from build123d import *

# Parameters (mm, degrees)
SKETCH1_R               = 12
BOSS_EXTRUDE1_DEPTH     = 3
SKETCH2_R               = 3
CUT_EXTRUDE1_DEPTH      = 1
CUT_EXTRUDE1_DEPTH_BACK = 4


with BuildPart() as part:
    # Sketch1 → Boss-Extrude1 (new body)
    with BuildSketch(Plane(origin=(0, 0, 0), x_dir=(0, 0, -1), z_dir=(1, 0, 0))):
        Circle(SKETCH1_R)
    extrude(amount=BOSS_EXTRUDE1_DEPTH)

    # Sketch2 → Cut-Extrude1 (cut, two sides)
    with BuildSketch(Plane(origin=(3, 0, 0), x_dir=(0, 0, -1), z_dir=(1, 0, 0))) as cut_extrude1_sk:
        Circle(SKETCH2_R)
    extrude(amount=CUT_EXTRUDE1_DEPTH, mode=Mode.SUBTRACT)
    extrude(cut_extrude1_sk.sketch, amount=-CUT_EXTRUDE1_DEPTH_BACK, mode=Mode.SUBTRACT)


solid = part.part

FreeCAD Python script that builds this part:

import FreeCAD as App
import Part
import Sketcher

doc = App.newDocument("Part")
body = doc.addObject("PartDesign::Body", "Body")

# Sketch on YZ plane
sketch1 = doc.addObject("Sketcher::SketchObject", "Sketch")
body.addObject(sketch1)
sketch1.AttachmentSupport = (doc.YZ_Plane, [""])
sketch1.MapMode = "FlatFace"
sketch1.addGeometry(Part.Circle(App.Vector(0, 0, 0), App.Vector(0, 0, 1), 12), False)
sketch1.addConstraint(Sketcher.Constraint("Coincident", 0, 3, -1, 1))
sketch1.addConstraint(Sketcher.Constraint("Diameter", 0, 24.0))
pad1 = doc.addObject("PartDesign::Pad", "Pad")
body.addObject(pad1)
pad1.Profile = sketch1
pad1.Length = 3

# Sketch on YZ plane
sketch2 = doc.addObject("Sketcher::SketchObject", "Sketch001")
body.addObject(sketch2)
sketch2.AttachmentSupport = (doc.YZ_Plane, [""])
sketch2.MapMode = "FlatFace"
sketch2.AttachmentOffset = App.Placement(App.Vector(0, 0, 3), App.Rotation())
sketch2.addGeometry(Part.Circle(App.Vector(0, 0, 0), App.Vector(0, 0, 1), 3), False)
sketch2.addConstraint(Sketcher.Constraint("Coincident", 0, 3, -1, 1))
sketch2.addConstraint(Sketcher.Constraint("Diameter", 0, 6.0))
pocket1 = doc.addObject("PartDesign::Pocket", "Pocket")
body.addObject(pocket1)
pocket1.Profile = sketch2
pocket1.Type = "ThroughAll"
pocket1.Midplane = True

doc.recompute()
